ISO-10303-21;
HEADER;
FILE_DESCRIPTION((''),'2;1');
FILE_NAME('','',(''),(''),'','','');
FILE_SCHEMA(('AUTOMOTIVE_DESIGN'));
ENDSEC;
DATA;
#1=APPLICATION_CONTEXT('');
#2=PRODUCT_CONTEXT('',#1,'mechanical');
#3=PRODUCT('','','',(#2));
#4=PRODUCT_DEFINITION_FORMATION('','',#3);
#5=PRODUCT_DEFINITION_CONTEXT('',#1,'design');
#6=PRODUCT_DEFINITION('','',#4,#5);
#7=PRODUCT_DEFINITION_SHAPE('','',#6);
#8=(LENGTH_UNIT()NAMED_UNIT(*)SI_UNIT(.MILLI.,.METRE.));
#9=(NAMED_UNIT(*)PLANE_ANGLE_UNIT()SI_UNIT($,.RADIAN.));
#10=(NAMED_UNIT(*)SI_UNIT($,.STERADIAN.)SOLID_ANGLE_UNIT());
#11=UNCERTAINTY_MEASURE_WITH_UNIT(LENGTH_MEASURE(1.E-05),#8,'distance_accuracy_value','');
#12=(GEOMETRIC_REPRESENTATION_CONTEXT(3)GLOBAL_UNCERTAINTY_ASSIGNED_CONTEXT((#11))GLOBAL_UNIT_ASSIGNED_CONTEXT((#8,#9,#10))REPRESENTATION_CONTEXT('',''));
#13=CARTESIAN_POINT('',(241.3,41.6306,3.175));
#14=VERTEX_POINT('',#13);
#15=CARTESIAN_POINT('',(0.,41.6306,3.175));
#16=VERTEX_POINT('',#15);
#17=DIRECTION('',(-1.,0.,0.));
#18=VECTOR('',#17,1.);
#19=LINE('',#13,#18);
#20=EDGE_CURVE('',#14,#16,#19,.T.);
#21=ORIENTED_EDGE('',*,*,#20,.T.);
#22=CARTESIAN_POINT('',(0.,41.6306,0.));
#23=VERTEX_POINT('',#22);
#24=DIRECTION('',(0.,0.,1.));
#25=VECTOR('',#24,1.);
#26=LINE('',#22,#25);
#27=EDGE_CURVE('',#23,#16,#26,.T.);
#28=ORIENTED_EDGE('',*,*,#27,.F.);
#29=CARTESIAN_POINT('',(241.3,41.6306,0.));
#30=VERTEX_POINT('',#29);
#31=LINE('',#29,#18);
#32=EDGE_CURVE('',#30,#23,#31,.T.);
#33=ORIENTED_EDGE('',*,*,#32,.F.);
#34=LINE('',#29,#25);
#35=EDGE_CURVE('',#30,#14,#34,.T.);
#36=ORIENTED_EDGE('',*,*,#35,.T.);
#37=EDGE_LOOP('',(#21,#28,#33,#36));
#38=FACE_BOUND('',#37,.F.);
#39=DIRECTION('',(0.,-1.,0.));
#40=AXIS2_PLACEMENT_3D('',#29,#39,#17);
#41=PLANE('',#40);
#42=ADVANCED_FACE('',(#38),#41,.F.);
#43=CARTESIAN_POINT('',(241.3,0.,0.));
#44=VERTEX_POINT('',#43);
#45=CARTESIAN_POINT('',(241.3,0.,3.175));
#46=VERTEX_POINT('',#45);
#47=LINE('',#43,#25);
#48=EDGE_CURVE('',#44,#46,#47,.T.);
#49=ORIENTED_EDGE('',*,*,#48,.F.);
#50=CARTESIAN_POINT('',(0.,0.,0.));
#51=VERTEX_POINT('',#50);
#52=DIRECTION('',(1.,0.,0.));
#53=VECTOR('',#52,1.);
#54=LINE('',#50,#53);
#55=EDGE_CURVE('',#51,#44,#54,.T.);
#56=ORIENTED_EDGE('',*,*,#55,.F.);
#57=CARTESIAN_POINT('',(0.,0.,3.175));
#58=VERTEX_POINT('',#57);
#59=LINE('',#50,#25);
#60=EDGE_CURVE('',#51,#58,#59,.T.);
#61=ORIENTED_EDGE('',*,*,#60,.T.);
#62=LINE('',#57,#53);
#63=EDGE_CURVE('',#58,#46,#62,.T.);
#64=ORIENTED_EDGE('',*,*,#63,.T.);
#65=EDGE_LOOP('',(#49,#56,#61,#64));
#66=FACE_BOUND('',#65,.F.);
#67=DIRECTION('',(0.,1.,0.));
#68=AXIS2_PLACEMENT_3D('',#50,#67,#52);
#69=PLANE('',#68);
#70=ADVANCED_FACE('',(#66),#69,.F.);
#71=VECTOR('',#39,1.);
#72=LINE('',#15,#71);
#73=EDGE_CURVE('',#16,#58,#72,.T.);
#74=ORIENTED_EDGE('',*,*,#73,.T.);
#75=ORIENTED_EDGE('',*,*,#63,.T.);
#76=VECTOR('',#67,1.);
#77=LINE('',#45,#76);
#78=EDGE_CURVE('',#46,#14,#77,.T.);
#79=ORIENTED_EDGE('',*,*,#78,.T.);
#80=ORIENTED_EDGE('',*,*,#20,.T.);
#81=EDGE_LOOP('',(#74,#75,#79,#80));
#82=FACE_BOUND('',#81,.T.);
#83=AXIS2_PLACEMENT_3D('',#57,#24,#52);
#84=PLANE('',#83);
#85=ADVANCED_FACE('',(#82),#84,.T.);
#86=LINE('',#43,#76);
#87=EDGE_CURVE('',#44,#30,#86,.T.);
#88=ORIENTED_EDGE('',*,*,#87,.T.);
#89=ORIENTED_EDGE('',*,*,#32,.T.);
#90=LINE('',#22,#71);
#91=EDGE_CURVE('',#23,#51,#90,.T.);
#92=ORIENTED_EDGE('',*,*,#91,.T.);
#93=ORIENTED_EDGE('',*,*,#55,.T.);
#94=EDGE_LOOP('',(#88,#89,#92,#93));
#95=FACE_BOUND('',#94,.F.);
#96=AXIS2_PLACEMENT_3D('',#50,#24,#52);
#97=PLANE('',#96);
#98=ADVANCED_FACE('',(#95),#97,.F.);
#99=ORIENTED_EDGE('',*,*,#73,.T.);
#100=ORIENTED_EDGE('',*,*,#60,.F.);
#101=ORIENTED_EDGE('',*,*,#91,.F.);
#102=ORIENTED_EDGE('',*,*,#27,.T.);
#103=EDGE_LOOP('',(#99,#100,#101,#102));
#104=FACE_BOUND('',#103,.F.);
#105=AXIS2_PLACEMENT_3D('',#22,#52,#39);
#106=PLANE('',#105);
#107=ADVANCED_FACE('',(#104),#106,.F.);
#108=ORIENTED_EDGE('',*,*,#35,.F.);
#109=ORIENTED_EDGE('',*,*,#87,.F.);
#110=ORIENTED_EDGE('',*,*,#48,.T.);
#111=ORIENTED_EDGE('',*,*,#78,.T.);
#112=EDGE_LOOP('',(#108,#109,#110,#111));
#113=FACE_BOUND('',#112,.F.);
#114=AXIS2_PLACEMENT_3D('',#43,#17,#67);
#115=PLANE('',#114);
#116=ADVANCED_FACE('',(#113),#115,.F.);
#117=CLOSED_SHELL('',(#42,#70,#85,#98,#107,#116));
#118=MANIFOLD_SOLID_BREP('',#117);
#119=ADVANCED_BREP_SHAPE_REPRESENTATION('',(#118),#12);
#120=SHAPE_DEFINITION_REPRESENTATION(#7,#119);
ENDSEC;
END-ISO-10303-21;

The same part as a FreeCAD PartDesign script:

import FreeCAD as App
import Part
import Sketcher
from FreeCAD import Vector
Q = App.Units.Quantity

doc = App.newDocument("Part")
body = doc.addObject("PartDesign::Body", "Body")

# Sketch on XY plane
sketch1 = body.newObject("Sketcher::SketchObject", "Sketch")
sketch1.AttachmentSupport = (doc.getObject("XY_Plane"), [""])
sketch1.MapMode = "FlatFace"
sketch1.addGeometry([
    Part.LineSegment(Vector(0, 42, 0), Vector(0, 0, 0)),
    Part.LineSegment(Vector(0, 0, 0), Vector(241, 0, 0)),
    Part.LineSegment(Vector(241, 0, 0), Vector(241, 42, 0)),
    Part.LineSegment(Vector(241, 42, 0), Vector(0, 42, 0)),
], False)
sketch1.addConstraint([
    Sketcher.Constraint("Coincident", 0, 2, 1, 1),
    Sketcher.Constraint("Coincident", 1, 2, 2, 1),
    Sketcher.Constraint("Coincident", 2, 2, 3, 1),
    Sketcher.Constraint("Coincident", 3, 2, 0, 1),
    Sketcher.Constraint("Vertical", 0),
    Sketcher.Constraint("Horizontal", 1),
    Sketcher.Constraint("Vertical", 2),
    Sketcher.Constraint("Horizontal", 3),
    Sketcher.Constraint("Coincident", 0, 2, -1, 1),
    Sketcher.Constraint("DistanceX", 1, 1, 1, 2, Q("9.5 in")),
    Sketcher.Constraint("DistanceY", 0, 2, 0, 1, Q("1.639 in")),
])
pad1 = body.newObject("PartDesign::Pad", "Pad")
pad1.Profile = sketch1
pad1.Length = Q("0.125 in")

doc.recompute()
